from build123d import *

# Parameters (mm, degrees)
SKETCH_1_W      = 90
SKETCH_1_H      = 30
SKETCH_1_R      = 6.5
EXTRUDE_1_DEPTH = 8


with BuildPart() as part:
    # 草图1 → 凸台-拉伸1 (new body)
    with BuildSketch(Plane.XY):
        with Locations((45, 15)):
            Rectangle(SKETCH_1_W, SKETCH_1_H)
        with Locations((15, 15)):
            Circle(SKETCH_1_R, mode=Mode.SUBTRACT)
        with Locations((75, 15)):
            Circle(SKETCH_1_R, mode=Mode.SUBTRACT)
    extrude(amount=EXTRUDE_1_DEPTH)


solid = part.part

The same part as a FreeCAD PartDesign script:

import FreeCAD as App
import Part
import Sketcher

V = App.Vector


def add_polygon(sketch, points):
    """Adds a closed chain of lines whose ends are joined by coincident constraints."""
    first, n = sketch.GeometryCount, len(points)
    for a, b in zip(points, points[1:] + points[:1]):
        sketch.addGeometry(Part.LineSegment(App.Vector(*a, 0), App.Vector(*b, 0)), False)
    for i in range(n):
        sketch.addConstraint(Sketcher.Constraint("Coincident", first + i, 2, first + (i + 1) % n, 1))

doc = App.newDocument("Part")
body = doc.addObject("PartDesign::Body", "Body")

sketch1 = body.newObject("Sketcher::SketchObject", "Sketch")
sketch1.AttachmentSupport = (doc.getObject("XY_Plane"), [""])
sketch1.MapMode = "FlatFace"
add_polygon(sketch1, [(0, 30), (0, 0), (90, 0), (90, 30)])
sketch1.addGeometry(Part.Circle(V(15, 15, 0), V(0, 0, 1), 6.5), False)
sketch1.addGeometry(Part.Circle(V(75, 15, 0), V(0, 0, 1), 6.5), False)
sketch1.addConstraint([
    Sketcher.Constraint("Vertical", 0),
    Sketcher.Constraint("Horizontal", 1),
    Sketcher.Constraint("Vertical", 2),
    Sketcher.Constraint("Horizontal", 3),
    Sketcher.Constraint("Coincident", 0, 2, -1, 1),
    Sketcher.Constraint("Equal", 4, 5),
    Sketcher.Constraint("Horizontal", 4, 3, 5, 3),
    Sketcher.Constraint("Diameter", 4, 13.0),
    Sketcher.Constraint("DistanceX", 1, 1, 1, 2, 90.0),
    Sketcher.Constraint("DistanceY", 0, 2, 0, 1, 30.0),
    Sketcher.Constraint("DistanceX", -1, 1, 4, 3, 15.0),
    Sketcher.Constraint("DistanceY", -1, 1, 4, 3, 15.0),
    Sketcher.Constraint("DistanceX", -1, 1, 5, 3, 75.0),
])
pad1 = body.newObject("PartDesign::Pad", "Pad")
pad1.Profile = sketch1
pad1.Length = 8

doc.recompute()
